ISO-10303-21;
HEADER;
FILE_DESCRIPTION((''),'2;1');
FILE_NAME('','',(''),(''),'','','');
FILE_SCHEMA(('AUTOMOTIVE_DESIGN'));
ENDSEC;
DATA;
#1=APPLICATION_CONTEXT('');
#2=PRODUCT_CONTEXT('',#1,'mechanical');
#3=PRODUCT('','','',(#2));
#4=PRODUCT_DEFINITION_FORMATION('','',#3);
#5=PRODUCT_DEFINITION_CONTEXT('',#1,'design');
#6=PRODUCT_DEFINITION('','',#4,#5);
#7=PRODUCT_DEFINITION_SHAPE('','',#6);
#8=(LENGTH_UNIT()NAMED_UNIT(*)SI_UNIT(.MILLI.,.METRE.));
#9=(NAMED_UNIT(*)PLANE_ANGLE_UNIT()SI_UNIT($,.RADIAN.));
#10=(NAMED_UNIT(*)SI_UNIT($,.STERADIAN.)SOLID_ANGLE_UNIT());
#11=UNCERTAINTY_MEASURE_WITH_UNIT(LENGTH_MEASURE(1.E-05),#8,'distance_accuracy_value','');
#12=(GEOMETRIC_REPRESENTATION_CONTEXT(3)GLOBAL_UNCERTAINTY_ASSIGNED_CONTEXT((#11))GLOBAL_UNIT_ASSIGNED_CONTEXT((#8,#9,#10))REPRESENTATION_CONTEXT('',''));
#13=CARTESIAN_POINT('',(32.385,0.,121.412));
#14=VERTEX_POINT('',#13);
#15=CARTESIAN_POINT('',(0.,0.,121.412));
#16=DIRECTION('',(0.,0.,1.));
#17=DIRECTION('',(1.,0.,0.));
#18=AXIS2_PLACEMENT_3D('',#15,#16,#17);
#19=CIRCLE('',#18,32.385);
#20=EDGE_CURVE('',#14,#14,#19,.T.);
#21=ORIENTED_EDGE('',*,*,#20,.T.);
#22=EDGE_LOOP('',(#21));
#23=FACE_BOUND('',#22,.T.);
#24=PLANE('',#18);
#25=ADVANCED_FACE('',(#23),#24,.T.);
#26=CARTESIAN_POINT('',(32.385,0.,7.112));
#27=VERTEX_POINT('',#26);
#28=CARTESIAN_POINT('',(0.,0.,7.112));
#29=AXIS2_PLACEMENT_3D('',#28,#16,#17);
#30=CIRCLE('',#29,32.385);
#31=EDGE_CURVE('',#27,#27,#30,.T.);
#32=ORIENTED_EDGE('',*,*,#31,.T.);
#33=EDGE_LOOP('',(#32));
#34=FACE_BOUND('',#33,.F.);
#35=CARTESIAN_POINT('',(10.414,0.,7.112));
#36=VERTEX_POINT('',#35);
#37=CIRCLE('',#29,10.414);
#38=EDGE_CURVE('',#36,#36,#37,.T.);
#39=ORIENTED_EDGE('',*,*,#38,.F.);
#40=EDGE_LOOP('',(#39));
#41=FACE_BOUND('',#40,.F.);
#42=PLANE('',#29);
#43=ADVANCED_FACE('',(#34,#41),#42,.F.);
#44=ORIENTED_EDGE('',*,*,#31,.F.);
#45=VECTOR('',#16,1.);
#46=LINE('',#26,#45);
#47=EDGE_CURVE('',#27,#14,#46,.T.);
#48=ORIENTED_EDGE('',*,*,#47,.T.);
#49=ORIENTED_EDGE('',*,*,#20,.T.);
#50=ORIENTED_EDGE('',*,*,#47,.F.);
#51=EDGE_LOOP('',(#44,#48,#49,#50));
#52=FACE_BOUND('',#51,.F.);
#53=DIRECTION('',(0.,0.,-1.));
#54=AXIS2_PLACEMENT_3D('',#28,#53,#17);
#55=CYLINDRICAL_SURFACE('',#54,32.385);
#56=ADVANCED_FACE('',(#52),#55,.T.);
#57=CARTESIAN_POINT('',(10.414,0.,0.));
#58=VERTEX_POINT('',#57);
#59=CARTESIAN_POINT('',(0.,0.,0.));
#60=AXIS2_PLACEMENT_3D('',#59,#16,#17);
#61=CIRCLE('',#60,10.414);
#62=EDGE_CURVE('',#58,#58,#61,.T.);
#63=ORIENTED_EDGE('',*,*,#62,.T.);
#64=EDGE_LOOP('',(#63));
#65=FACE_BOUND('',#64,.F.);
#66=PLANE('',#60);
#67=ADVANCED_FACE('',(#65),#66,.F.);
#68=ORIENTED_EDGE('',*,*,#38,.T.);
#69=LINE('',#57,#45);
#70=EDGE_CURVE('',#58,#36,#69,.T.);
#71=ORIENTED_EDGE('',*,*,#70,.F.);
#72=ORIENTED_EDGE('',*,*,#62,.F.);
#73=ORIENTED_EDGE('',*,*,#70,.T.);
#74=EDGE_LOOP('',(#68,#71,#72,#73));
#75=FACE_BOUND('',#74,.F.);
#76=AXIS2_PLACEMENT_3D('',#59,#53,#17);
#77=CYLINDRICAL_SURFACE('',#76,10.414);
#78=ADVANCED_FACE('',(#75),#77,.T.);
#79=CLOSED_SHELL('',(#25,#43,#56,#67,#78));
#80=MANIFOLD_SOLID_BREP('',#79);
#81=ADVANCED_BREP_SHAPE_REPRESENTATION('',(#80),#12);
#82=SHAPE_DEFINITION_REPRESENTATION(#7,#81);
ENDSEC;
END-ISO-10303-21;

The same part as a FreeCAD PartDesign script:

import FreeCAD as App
import Part
import Sketcher

V = App.Vector
Q = App.Units.Quantity

doc = App.newDocument("Part")
params = doc.addObject("Spreadsheet::Sheet", "Params")
for row, (alias, value) in enumerate([
    ("sketch1_diameter", "0.82 in"),
    ("pad1_length", "0.28 in"),
    ("sketch2_diameter", "2.55 in"),
    ("pad2_length", "4.5 in"),
], start=1):
    params.set(f"A{row}", alias)
    params.set(f"B{row}", "=" + value)
    params.setAlias(f"B{row}", alias)

body = doc.addObject("PartDesign::Body", "Body")

sketch1 = body.newObject("Sketcher::SketchObject", "Sketch")
sketch1.AttachmentSupport = (doc.getObject("XY_Plane"), [""])
sketch1.MapMode = "FlatFace"
sketch1.addGeometry(Part.Circle(V(0, 0, 0), V(0, 0, 1), 10), False)
sketch1.addConstraint([
    Sketcher.Constraint("Coincident", 0, 3, -1, 1),
    Sketcher.Constraint("Diameter", 0, Q("0.82 in")),
])
sketch1.setExpression("Constraints[1]", "Params.sketch1_diameter")
pad1 = body.newObject("PartDesign::Pad", "Pad")
pad1.Profile = sketch1
pad1.setExpression("Length", "Params.pad1_length")

sketch2 = body.newObject("Sketcher::SketchObject", "Sketch001")
sketch2.AttachmentSupport = (doc.getObject("XY_Plane"), [""])
sketch2.MapMode = "FlatFace"
sketch2.AttachmentOffset = App.Placement(V(0, 0, 0.28 * 25.4), App.Rotation())
sketch2.addGeometry(Part.Circle(V(0, 0, 0), V(0, 0, 1), 32), False)
sketch2.addConstraint([
    Sketcher.Constraint("Coincident", 0, 3, -1, 1),
    Sketcher.Constraint("Diameter", 0, Q("2.55 in")),
])
sketch2.setExpression("Constraints[1]", "Params.sketch2_diameter")
pad2 = body.newObject("PartDesign::Pad", "Pad001")
pad2.Profile = sketch2
pad2.setExpression("Length", "Params.pad2_length")

doc.recompute()
